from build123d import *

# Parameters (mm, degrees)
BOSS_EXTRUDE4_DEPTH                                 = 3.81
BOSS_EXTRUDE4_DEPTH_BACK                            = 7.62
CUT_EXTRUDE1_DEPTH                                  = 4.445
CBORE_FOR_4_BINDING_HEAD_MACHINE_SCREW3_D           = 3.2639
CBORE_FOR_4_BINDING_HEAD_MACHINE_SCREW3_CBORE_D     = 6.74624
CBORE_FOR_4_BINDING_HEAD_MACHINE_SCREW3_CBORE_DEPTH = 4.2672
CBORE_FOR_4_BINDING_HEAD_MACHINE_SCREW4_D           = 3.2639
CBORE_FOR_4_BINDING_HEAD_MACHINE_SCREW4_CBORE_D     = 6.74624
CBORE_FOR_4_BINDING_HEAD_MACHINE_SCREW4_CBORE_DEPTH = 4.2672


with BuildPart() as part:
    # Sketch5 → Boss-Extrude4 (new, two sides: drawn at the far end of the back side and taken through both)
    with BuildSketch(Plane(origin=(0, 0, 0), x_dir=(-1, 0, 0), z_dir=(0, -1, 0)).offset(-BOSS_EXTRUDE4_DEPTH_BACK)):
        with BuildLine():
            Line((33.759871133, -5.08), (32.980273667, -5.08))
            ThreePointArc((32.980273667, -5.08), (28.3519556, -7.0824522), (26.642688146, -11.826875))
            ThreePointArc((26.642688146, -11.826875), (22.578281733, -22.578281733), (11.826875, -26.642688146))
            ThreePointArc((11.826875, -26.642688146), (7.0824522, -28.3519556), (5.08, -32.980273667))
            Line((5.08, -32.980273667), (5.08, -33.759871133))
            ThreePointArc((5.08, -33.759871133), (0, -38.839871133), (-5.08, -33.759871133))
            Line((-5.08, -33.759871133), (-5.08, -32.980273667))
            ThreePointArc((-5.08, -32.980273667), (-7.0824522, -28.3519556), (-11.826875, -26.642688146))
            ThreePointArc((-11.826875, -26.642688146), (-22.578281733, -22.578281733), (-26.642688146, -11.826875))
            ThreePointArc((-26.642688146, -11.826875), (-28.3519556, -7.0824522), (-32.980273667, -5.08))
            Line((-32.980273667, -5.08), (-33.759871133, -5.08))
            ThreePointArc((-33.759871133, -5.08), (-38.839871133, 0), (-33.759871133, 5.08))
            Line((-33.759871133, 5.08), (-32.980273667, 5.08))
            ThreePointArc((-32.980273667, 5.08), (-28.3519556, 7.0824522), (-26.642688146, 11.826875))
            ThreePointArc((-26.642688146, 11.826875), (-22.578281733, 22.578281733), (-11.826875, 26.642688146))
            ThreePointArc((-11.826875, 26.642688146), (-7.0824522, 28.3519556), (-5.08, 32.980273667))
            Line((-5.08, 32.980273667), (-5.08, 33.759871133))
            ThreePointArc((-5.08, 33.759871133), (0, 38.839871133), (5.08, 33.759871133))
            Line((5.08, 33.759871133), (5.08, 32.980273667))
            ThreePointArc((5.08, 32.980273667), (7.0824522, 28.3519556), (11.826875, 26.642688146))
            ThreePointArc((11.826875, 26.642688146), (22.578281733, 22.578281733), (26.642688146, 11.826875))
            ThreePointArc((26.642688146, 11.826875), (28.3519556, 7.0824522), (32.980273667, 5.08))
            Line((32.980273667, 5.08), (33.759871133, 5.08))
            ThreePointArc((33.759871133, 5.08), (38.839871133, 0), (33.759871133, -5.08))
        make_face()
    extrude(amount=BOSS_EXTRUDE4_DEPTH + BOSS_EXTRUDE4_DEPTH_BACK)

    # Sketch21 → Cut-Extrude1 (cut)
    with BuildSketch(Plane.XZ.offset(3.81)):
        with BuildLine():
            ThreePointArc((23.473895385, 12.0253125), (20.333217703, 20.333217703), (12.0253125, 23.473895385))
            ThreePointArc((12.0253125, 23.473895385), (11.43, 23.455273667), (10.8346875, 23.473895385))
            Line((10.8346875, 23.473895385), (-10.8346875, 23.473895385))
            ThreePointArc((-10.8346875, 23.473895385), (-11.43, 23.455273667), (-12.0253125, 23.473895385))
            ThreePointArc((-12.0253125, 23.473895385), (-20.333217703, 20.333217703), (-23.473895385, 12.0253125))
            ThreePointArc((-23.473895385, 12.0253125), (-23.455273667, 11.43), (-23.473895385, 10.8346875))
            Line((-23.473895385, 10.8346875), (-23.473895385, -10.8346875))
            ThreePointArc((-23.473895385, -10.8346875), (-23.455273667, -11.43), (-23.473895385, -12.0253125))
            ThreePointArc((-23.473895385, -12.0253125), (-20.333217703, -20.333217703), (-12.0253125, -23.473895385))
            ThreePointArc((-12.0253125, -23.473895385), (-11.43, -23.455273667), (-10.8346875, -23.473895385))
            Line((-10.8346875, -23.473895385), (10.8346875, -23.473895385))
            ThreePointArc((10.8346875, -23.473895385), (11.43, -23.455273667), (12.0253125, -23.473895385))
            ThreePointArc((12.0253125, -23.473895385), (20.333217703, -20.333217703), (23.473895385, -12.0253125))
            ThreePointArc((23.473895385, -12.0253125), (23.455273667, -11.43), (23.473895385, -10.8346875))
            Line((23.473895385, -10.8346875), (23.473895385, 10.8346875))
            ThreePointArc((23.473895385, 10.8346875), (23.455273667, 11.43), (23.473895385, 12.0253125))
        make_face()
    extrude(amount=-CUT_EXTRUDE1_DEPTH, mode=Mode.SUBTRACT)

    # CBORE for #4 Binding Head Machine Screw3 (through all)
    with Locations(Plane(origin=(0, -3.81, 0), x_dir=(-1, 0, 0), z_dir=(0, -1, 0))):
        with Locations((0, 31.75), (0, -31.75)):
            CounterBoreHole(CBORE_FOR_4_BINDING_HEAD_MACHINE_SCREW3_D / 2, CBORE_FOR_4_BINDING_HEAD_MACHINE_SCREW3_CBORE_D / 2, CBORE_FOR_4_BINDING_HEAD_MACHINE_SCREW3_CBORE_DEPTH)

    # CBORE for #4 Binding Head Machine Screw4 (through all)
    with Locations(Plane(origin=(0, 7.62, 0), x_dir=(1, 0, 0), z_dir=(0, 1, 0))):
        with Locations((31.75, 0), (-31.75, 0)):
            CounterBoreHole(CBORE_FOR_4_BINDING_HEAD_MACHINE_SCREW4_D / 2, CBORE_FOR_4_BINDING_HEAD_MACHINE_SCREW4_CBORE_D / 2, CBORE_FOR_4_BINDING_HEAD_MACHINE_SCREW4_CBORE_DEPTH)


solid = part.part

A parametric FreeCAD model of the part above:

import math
import FreeCAD as App
import Part
import Sketcher

V = App.Vector
Q = App.Units.Quantity

doc = App.newDocument("Part")
params = doc.addObject("Spreadsheet::Sheet", "Params")
for row, (alias, value) in enumerate([
    ("sketch1_radius", "0.2 in"),
    ("sketch1_radius2", "0.25 in"),
    ("sketch1_radius3", "0.55 in"),
    ("pad1_length", "0.15 in"),
    ("pad1_length2", "0.3 in"),
    ("sketch2_radius", "0.425 in"),
    ("sketch2_radius2", "0.375 in"),
    ("pocket1_length", "0.175 in"),
    ("hole_diameter", "0.1285 in"),
    ("hole_cbore_diameter", "0.2656 in"),
    ("hole_cbore_depth", "0.168 in"),
    ("hole2_diameter", "0.1285 in"),
    ("hole2_cbore_diameter", "0.2656 in"),
    ("hole2_cbore_depth", "0.168 in"),
], start=1):
    params.set(f"A{row}", alias)
    params.set(f"B{row}", "=" + value)
    params.setAlias(f"B{row}", alias)

body = doc.addObject("PartDesign::Body", "Body")

# Sketch on XZ plane
sketch1 = body.newObject("Sketcher::SketchObject", "Sketch")
sketch1.AttachmentSupport = (doc.getObject("XZ_Plane"), [""])
sketch1.MapMode = "FlatFace"
sketch1.addGeometry(Part.LineSegment(V(-33, 5.1, 0), V(-33.8, 5.1, 0)), False)
sketch1.addGeometry(Part.ArcOfCircle(Part.Circle(V(-33.8, 0, 0), V(0, 0, 1), 5.1), math.radians(90), math.radians(270)), False)
sketch1.addGeometry(Part.LineSegment(V(-33.8, -5.1, 0), V(-33, -5.1, 0)), False)
sketch1.addGeometry(Part.ArcOfCircle(Part.Circle(V(-33, -11.4, 0), V(0, 0, 1), 6.3), math.radians(-4), math.radians(90)), False)
sketch1.addGeometry(Part.ArcOfCircle(Part.Circle(V(-12.7, -12.7, 0), V(0, 0, 1), 14), math.radians(176), math.radians(274)), False)
sketch1.addGeometry(Part.ArcOfCircle(Part.Circle(V(-11.4, -33, 0), V(0, 0, 1), 6.3), math.radians(0), math.radians(94)), False)
sketch1.addGeometry(Part.LineSegment(V(-5.1, -33, 0), V(-5.1, -33.8, 0)), False)
sketch1.addGeometry(Part.ArcOfCircle(Part.Circle(V(0, -33.8, 0), V(0, 0, 1), 5.1), math.radians(180), math.radians(360)), False)
sketch1.addGeometry(Part.LineSegment(V(5.1, -33.8, 0), V(5.1, -33, 0)), False)
sketch1.addGeometry(Part.ArcOfCircle(Part.Circle(V(11.4, -33, 0), V(0, 0, 1), 6.3), math.radians(86), math.radians(180)), False)
sketch1.addGeometry(Part.ArcOfCircle(Part.Circle(V(12.7, -12.7, 0), V(0, 0, 1), 14), math.radians(-94), math.radians(4)), False)
sketch1.addGeometry(Part.ArcOfCircle(Part.Circle(V(33, -11.4, 0), V(0, 0, 1), 6.3), math.radians(90), math.radians(184)), False)
sketch1.addGeometry(Part.LineSegment(V(33, -5.1, 0), V(33.8, -5.1, 0)), False)
sketch1.addGeometry(Part.ArcOfCircle(Part.Circle(V(33.8, 0, 0), V(0, 0, 1), 5.1), math.radians(-90), math.radians(90)), False)
sketch1.addGeometry(Part.LineSegment(V(33.8, 5.1, 0), V(33, 5.1, 0)), False)
sketch1.addGeometry(Part.ArcOfCircle(Part.Circle(V(33, 11.4, 0), V(0, 0, 1), 6.3), math.radians(176), math.radians(270)), False)
sketch1.addGeometry(Part.ArcOfCircle(Part.Circle(V(12.7, 12.7, 0), V(0, 0, 1), 14), math.radians(-4), math.radians(94)), False)
sketch1.addGeometry(Part.ArcOfCircle(Part.Circle(V(11.4, 33, 0), V(0, 0, 1), 6.3), math.radians(180), math.radians(274)), False)
sketch1.addGeometry(Part.LineSegment(V(5.1, 33, 0), V(5.1, 33.8, 0)), False)
sketch1.addGeometry(Part.ArcOfCircle(Part.Circle(V(0, 33.8, 0), V(0, 0, 1), 5.1), math.radians(0), math.radians(180)), False)
sketch1.addGeometry(Part.LineSegment(V(-5.1, 33.8, 0), V(-5.1, 33, 0)), False)
sketch1.addGeometry(Part.ArcOfCircle(Part.Circle(V(-11.4, 33, 0), V(0, 0, 1), 6.3), math.radians(-94), math.radians(0)), False)
sketch1.addGeometry(Part.ArcOfCircle(Part.Circle(V(-12.7, 12.7, 0), V(0, 0, 1), 14), math.radians(86), math.radians(184)), False)
sketch1.addGeometry(Part.ArcOfCircle(Part.Circle(V(-33, 11.4, 0), V(0, 0, 1), 6.3), math.radians(-90), math.radians(4)), False)
sketch1.addConstraint(Sketcher.Constraint("Tangent", 0, 2, 1, 1))
sketch1.addConstraint(Sketcher.Constraint("Tangent", 1, 2, 2, 1))
sketch1.addConstraint(Sketcher.Constraint("Tangent", 2, 2, 3, 2))
sketch1.addConstraint(Sketcher.Constraint("Tangent", 3, 1, 4, 1))
sketch1.addConstraint(Sketcher.Constraint("Tangent", 4, 2, 5, 2))
sketch1.addConstraint(Sketcher.Constraint("Tangent", 5, 1, 6, 1))
sketch1.addConstraint(Sketcher.Constraint("Tangent", 6, 2, 7, 1))
sketch1.addConstraint(Sketcher.Constraint("Tangent", 7, 2, 8, 1))
sketch1.addConstraint(Sketcher.Constraint("Tangent", 8, 2, 9, 2))
sketch1.addConstraint(Sketcher.Constraint("Tangent", 9, 1, 10, 1))
sketch1.addConstraint(Sketcher.Constraint("Tangent", 10, 2, 11, 2))
sketch1.addConstraint(Sketcher.Constraint("Tangent", 11, 1, 12, 1))
sketch1.addConstraint(Sketcher.Constraint("Tangent", 12, 2, 13, 1))
sketch1.addConstraint(Sketcher.Constraint("Tangent", 13, 2, 14, 1))
sketch1.addConstraint(Sketcher.Constraint("Tangent", 14, 2, 15, 2))
sketch1.addConstraint(Sketcher.Constraint("Tangent", 15, 1, 16, 1))
sketch1.addConstraint(Sketcher.Constraint("Tangent", 16, 2, 17, 2))
sketch1.addConstraint(Sketcher.Constraint("Tangent", 17, 1, 18, 1))
sketch1.addConstraint(Sketcher.Constraint("Tangent", 18, 2, 19, 1))
sketch1.addConstraint(Sketcher.Constraint("Tangent", 19, 2, 20, 1))
sketch1.addConstraint(Sketcher.Constraint("Tangent", 20, 2, 21, 2))
sketch1.addConstraint(Sketcher.Constraint("Tangent", 21, 1, 22, 1))
sketch1.addConstraint(Sketcher.Constraint("Tangent", 22, 2, 23, 2))
sketch1.addConstraint(Sketcher.Constraint("Tangent", 23, 1, 0, 1))
sketch1.addConstraint(Sketcher.Constraint("Horizontal", 0))
sketch1.addConstraint(Sketcher.Constraint("Horizontal", 2))
sketch1.addConstraint(Sketcher.Constraint("Vertical", 6))
sketch1.addConstraint(Sketcher.Constraint("Vertical", 8))
sketch1.addConstraint(Sketcher.Constraint("Horizontal", 12))
sketch1.addConstraint(Sketcher.Constraint("Horizontal", 14))
sketch1.addConstraint(Sketcher.Constraint("Vertical", 18))
sketch1.addConstraint(Sketcher.Constraint("Vertical", 20))
sketch1.addConstraint(Sketcher.Constraint("Equal", 3, 5))
sketch1.addConstraint(Sketcher.Constraint("Equal", 1, 7))
sketch1.addConstraint(Sketcher.Constraint("Equal", 5, 9))
sketch1.addConstraint(Sketcher.Constraint("Equal", 4, 10))
sketch1.addConstraint(Sketcher.Constraint("Equal", 9, 11))
sketch1.addConstraint(Sketcher.Constraint("Equal", 7, 13))
sketch1.addConstraint(Sketcher.Constraint("Equal", 11, 15))
sketch1.addConstraint(Sketcher.Constraint("Equal", 10, 16))
sketch1.addConstraint(Sketcher.Constraint("Equal", 15, 17))
sketch1.addConstraint(Sketcher.Constraint("Equal", 13, 19))
sketch1.addConstraint(Sketcher.Constraint("Equal", 17, 21))
sketch1.addConstraint(Sketcher.Constraint("Equal", 16, 22))
sketch1.addConstraint(Sketcher.Constraint("Equal", 21, 23))
sketch1.addConstraint(Sketcher.Constraint("Symmetric", 1, 3, 13, 3, -1, 1))
sketch1.addConstraint(Sketcher.Constraint("Symmetric", 4, 3, 16, 3, -1, 1))
sketch1.addConstraint(Sketcher.Constraint("Symmetric", 7, 3, 19, 3, -1, 1))
sketch1.addConstraint(Sketcher.Constraint("Symmetric", 10, 3, 22, 3, -1, 1))
sketch1.addConstraint(Sketcher.Constraint("Symmetric", 5, 3, 9, 3, -2))
sketch1.addConstraint(Sketcher.Constraint("Symmetric", 3, 3, 11, 3, -2))
sketch1.addConstraint(Sketcher.Constraint("Equal", 14, 6))
sketch1.addConstraint(Sketcher.Constraint("Radius", 1, Q("0.2 in")))
sketch1.addConstraint(Sketcher.Constraint("Radius", 3, Q("0.25 in")))
sketch1.addConstraint(Sketcher.Constraint("Radius", 4, Q("0.55 in")))
sketch1.addConstraint(Sketcher.Constraint("DistanceX", 4, 3, 10, 3, Q("1 in")))
sketch1.addConstraint(Sketcher.Constraint("DistanceY", 10, 3, 16, 3, Q("1 in")))
sketch1.addConstraint(Sketcher.Constraint("DistanceX", 0, 2, 0, 1, Q("0.779597 mm")))
sketch1.setExpression("Constraints[52]", "Params.sketch1_radius")
sketch1.setExpression("Constraints[53]", "Params.sketch1_radius2")
sketch1.setExpression("Constraints[54]", "Params.sketch1_radius3")
pad1 = body.newObject("PartDesign::Pad", "Pad")
pad1.Profile = sketch1
pad1.Type = "TwoLengths"
pad1.setExpression("Length", "Params.pad1_length")
pad1.setExpression("Length2", "Params.pad1_length2")

# Sketch on XZ plane
sketch2 = body.newObject("Sketcher::SketchObject", "Sketch001")
sketch2.AttachmentSupport = (doc.getObject("XZ_Plane"), [""])
sketch2.MapMode = "FlatFace"
sketch2.AttachmentOffset = App.Placement(V(0, 0, 0.15 * 25.4), App.Rotation())
sketch2.addGeometry(Part.ArcOfCircle(Part.Circle(V(12.7, 12.7, 0), V(0, 0, 1), 10.8), math.radians(-4), math.radians(94)), False)
sketch2.addGeometry(Part.ArcOfCircle(Part.Circle(V(11.4, 33, 0), V(0, 0, 1), 9.5), math.radians(-93.58), math.radians(-86.42)), False)
sketch2.addGeometry(Part.LineSegment(V(10.8, 23.5, 0), V(-10.8, 23.5, 0)), False)
sketch2.addGeometry(Part.ArcOfCircle(Part.Circle(V(-11.4, 33, 0), V(0, 0, 1), 9.5), math.radians(-93.58), math.radians(-86.42)), False)
sketch2.addGeometry(Part.ArcOfCircle(Part.Circle(V(-12.7, 12.7, 0), V(0, 0, 1), 10.8), math.radians(86), math.radians(184)), False)
sketch2.addGeometry(Part.ArcOfCircle(Part.Circle(V(-33, 11.4, 0), V(0, 0, 1), 9.5), math.radians(-3.58), math.radians(3.58)), False)
sketch2.addGeometry(Part.LineSegment(V(-23.5, 10.8, 0), V(-23.5, -10.8, 0)), False)
sketch2.addGeometry(Part.ArcOfCircle(Part.Circle(V(-33, -11.4, 0), V(0, 0, 1), 9.5), math.radians(-3.58), math.radians(3.58)), False)
sketch2.addGeometry(Part.ArcOfCircle(Part.Circle(V(-12.7, -12.7, 0), V(0, 0, 1), 10.8), math.radians(176), math.radians(274)), False)
sketch2.addGeometry(Part.ArcOfCircle(Part.Circle(V(-11.4, -33, 0), V(0, 0, 1), 9.5), math.radians(86.42), math.radians(93.58)), False)
sketch2.addGeometry(Part.LineSegment(V(-10.8, -23.5, 0), V(10.8, -23.5, 0)), False)
sketch2.addGeometry(Part.ArcOfCircle(Part.Circle(V(11.4, -33, 0), V(0, 0, 1), 9.5), math.radians(86.42), math.radians(93.58)), False)
sketch2.addGeometry(Part.ArcOfCircle(Part.Circle(V(12.7, -12.7, 0), V(0, 0, 1), 10.8), math.radians(-94), math.radians(4)), False)
sketch2.addGeometry(Part.ArcOfCircle(Part.Circle(V(33, -11.4, 0), V(0, 0, 1), 9.5), math.radians(176.42), math.radians(183.58)), False)
sketch2.addGeometry(Part.LineSegment(V(23.5, -10.8, 0), V(23.5, 10.8, 0)), False)
sketch2.addGeometry(Part.ArcOfCircle(Part.Circle(V(33, 11.4, 0), V(0, 0, 1), 9.5), math.radians(176.42), math.radians(183.58)), False)
sketch2.addConstraint(Sketcher.Constraint("Tangent", 0, 2, 1, 2))
sketch2.addConstraint(Sketcher.Constraint("Coincident", 1, 1, 2, 1))
sketch2.addConstraint(Sketcher.Constraint("Coincident", 2, 2, 3, 2))
sketch2.addConstraint(Sketcher.Constraint("Tangent", 3, 1, 4, 1))
sketch2.addConstraint(Sketcher.Constraint("Tangent", 4, 2, 5, 2))
sketch2.addConstraint(Sketcher.Constraint("Coincident", 5, 1, 6, 1))
sketch2.addConstraint(Sketcher.Constraint("Coincident", 6, 2, 7, 2))
sketch2.addConstraint(Sketcher.Constraint("Tangent", 7, 1, 8, 1))
sketch2.addConstraint(Sketcher.Constraint("Tangent", 8, 2, 9, 2))
sketch2.addConstraint(Sketcher.Constraint("Coincident", 9, 1, 10, 1))
sketch2.addConstraint(Sketcher.Constraint("Coincident", 10, 2, 11, 2))
sketch2.addConstraint(Sketcher.Constraint("Tangent", 11, 1, 12, 1))
sketch2.addConstraint(Sketcher.Constraint("Tangent", 12, 2, 13, 2))
sketch2.addConstraint(Sketcher.Constraint("Coincident", 13, 1, 14, 1))
sketch2.addConstraint(Sketcher.Constraint("Coincident", 14, 2, 15, 2))
sketch2.addConstraint(Sketcher.Constraint("Tangent", 15, 1, 0, 1))
sketch2.addConstraint(Sketcher.Constraint("Horizontal", 2))
sketch2.addConstraint(Sketcher.Constraint("Vertical", 6))
sketch2.addConstraint(Sketcher.Constraint("Horizontal", 10))
sketch2.addConstraint(Sketcher.Constraint("Vertical", 14))
sketch2.addConstraint(Sketcher.Constraint("Equal", 1, 3))
sketch2.addConstraint(Sketcher.Constraint("Equal", 0, 4))
sketch2.addConstraint(Sketcher.Constraint("Equal", 3, 5))
sketch2.addConstraint(Sketcher.Constraint("Equal", 5, 7))
sketch2.addConstraint(Sketcher.Constraint("Equal", 4, 8))
sketch2.addConstraint(Sketcher.Constraint("Equal", 7, 9))
sketch2.addConstraint(Sketcher.Constraint("Equal", 9, 11))
sketch2.addConstraint(Sketcher.Constraint("Equal", 8, 12))
sketch2.addConstraint(Sketcher.Constraint("Equal", 11, 13))
sketch2.addConstraint(Sketcher.Constraint("Equal", 13, 15))
sketch2.addConstraint(Sketcher.Constraint("Symmetric", 0, 3, 8, 3, -1, 1))
sketch2.addConstraint(Sketcher.Constraint("Symmetric", 3, 3, 11, 3, -1, 1))
sketch2.addConstraint(Sketcher.Constraint("Symmetric", 5, 3, 13, 3, -1, 1))
sketch2.addConstraint(Sketcher.Constraint("Symmetric", 1, 1, 9, 1, -1, 1))
sketch2.addConstraint(Sketcher.Constraint("Symmetric", 6, 2, 14, 2, -1, 1))
sketch2.addConstraint(Sketcher.Constraint("Symmetric", 1, 3, 3, 3, -2))
sketch2.addConstraint(Sketcher.Constraint("Symmetric", 7, 3, 13, 3, -2))
sketch2.addConstraint(Sketcher.Constraint("Horizontal", 0, 2, 1, 1))
sketch2.addConstraint(Sketcher.Constraint("Vertical", 4, 2, 5, 1))
sketch2.addConstraint(Sketcher.Constraint("Equal", 10, 6))
sketch2.addConstraint(Sketcher.Constraint("Radius", 0, Q("0.425 in")))
sketch2.addConstraint(Sketcher.Constraint("Radius", 1, Q("0.375 in")))
sketch2.addConstraint(Sketcher.Constraint("DistanceX", 4, 3, 0, 3, Q("1 in")))
sketch2.addConstraint(Sketcher.Constraint("DistanceY", 8, 3, 4, 3, Q("1 in")))
sketch2.addConstraint(Sketcher.Constraint("DistanceX", 3, 3, 1, 3, Q("0.9 in")))
sketch2.setExpression("Constraints[40]", "Params.sketch2_radius")
sketch2.setExpression("Constraints[41]", "Params.sketch2_radius2")
pocket1 = body.newObject("PartDesign::Pocket", "Pocket")
pocket1.Profile = sketch2
pocket1.setExpression("Length", "Params.pocket1_length")

# Sketch on XZ plane
sketch3 = body.newObject("Sketcher::SketchObject", "Sketch002")
sketch3.AttachmentSupport = (doc.getObject("XZ_Plane"), [""])
sketch3.MapMode = "FlatFace"
sketch3.AttachmentOffset = App.Placement(V(0, 0, 0.15 * 25.4), App.Rotation())
sketch3.addGeometry(Part.Circle(V(0, -31.8, 0), V(0, 0, 1), 1.6), False)
sketch3.addGeometry(Part.Circle(V(0, 31.8, 0), V(0, 0, 1), 1.6), False)
sketch3.addConstraint(Sketcher.Constraint("Equal", 0, 1))
sketch3.addConstraint(Sketcher.Constraint("Symmetric", 0, 3, 1, 3, -1, 1))
sketch3.addConstraint(Sketcher.Constraint("PointOnObject", 0, 3, -2))
sketch3.addConstraint(Sketcher.Constraint("Diameter", 0, Q("0.1285 in")))
sketch3.addConstraint(Sketcher.Constraint("DistanceY", 0, 3, 1, 3, Q("2.5 in")))
doc.recompute()
hole = body.newObject("PartDesign::Hole", "Hole")
hole.Profile = sketch3
hole.ThreadType = "None"
hole.setExpression("Diameter", "Params.hole_diameter")
hole.DepthType = "ThroughAll"
hole.HoleCutType = "Counterbore"
hole.setExpression("HoleCutDiameter", "Params.hole_cbore_diameter")
hole.setExpression("HoleCutDepth", "Params.hole_cbore_depth")

# Sketch on XZ plane
sketch4 = body.newObject("Sketcher::SketchObject", "Sketch003")
sketch4.AttachmentSupport = (doc.getObject("XZ_Plane"), [""])
sketch4.MapMode = "FlatFace"
sketch4.AttachmentOffset = App.Placement(V(0, 0, -0.3 * 25.4), App.Rotation())
sketch4.addGeometry(Part.Circle(V(31.8, 0, 0), V(0, 0, 1), 1.6), False)
sketch4.addGeometry(Part.Circle(V(-31.8, 0, 0), V(0, 0, 1), 1.6), False)
sketch4.addConstraint(Sketcher.Constraint("Equal", 0, 1))
sketch4.addConstraint(Sketcher.Constraint("Symmetric", 0, 3, 1, 3, -1, 1))
sketch4.addConstraint(Sketcher.Constraint("PointOnObject", 0, 3, -1))
sketch4.addConstraint(Sketcher.Constraint("Diameter", 0, Q("0.1285 in")))
sketch4.addConstraint(Sketcher.Constraint("DistanceX", 1, 3, 0, 3, Q("2.5 in")))
doc.recompute()
hole2 = body.newObject("PartDesign::Hole", "Hole001")
hole2.Profile = sketch4
hole2.ThreadType = "None"
hole2.setExpression("Diameter", "Params.hole2_diameter")
hole2.DepthType = "ThroughAll"
hole2.HoleCutType = "Counterbore"
hole2.setExpression("HoleCutDiameter", "Params.hole2_cbore_diameter")
hole2.setExpression("HoleCutDepth", "Params.hole2_cbore_depth")
hole2.Reversed = True

doc.recompute()
